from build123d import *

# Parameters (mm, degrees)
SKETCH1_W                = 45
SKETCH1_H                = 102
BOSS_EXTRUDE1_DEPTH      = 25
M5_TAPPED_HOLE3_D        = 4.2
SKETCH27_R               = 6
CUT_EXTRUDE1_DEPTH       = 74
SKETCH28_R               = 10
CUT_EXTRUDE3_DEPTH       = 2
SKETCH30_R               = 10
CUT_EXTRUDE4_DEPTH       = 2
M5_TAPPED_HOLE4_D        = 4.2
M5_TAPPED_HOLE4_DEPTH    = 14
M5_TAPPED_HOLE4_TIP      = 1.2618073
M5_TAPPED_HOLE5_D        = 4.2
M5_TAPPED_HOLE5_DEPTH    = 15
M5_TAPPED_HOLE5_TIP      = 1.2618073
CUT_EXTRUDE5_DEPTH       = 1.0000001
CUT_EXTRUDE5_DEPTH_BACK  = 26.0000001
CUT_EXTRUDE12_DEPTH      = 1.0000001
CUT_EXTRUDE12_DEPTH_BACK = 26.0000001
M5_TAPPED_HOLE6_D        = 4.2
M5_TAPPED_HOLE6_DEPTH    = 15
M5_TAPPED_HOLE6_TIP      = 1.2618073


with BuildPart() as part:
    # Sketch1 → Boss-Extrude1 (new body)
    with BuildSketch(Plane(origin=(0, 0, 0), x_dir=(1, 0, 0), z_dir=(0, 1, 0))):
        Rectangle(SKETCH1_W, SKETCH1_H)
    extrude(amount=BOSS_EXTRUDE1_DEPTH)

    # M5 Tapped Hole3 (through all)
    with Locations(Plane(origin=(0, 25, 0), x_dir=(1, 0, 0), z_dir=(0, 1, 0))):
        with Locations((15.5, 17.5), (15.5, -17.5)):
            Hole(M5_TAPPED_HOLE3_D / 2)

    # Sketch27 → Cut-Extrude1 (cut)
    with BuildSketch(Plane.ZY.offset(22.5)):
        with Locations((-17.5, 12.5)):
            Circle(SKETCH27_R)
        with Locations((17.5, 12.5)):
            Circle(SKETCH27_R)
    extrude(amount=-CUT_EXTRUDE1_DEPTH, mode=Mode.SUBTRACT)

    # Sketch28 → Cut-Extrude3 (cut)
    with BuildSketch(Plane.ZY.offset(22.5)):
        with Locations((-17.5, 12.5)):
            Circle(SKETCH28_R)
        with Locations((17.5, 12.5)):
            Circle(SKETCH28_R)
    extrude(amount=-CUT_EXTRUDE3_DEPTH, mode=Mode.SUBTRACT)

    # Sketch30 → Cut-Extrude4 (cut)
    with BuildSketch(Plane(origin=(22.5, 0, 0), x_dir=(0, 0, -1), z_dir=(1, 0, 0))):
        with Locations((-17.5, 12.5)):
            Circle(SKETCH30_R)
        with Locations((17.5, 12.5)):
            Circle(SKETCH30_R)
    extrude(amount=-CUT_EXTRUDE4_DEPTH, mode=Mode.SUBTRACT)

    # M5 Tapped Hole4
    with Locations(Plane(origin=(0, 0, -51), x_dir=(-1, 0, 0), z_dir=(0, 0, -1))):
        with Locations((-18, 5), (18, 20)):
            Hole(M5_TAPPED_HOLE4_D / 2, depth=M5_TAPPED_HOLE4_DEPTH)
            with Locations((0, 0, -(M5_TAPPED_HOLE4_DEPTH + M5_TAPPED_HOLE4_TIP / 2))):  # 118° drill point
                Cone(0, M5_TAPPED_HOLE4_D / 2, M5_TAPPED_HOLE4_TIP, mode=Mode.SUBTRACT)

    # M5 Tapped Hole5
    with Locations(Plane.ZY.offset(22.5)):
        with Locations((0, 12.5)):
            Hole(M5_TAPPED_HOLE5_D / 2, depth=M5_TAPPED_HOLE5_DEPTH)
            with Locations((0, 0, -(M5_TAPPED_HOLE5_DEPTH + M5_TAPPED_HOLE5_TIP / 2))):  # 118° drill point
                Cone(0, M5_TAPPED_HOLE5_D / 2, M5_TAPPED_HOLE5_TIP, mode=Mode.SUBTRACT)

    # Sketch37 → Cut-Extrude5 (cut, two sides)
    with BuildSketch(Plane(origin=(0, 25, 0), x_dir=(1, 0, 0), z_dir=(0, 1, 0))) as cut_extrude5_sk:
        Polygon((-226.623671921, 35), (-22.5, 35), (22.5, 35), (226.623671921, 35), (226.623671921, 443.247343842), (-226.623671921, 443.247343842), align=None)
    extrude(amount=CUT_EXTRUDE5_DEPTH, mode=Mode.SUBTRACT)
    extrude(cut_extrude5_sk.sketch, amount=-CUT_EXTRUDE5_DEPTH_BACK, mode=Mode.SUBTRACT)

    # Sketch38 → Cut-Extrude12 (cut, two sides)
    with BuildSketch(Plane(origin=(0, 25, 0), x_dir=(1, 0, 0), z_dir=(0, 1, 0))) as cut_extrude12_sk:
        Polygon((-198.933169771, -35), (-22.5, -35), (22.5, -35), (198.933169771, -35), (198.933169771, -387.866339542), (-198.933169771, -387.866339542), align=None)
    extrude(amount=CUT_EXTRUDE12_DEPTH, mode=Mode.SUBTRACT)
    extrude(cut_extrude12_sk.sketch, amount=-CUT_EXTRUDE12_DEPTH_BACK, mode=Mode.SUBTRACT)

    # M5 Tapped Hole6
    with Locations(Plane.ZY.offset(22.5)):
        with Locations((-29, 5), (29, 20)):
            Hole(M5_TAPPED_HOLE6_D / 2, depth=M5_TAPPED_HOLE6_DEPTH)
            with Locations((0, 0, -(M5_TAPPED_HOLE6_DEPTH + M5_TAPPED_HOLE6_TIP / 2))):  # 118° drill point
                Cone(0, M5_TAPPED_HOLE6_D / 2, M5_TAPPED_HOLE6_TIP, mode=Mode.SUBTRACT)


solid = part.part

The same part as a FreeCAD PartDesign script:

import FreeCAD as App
import Part
import Sketcher
Q = App.Units.Quantity

doc = App.newDocument("Part")
body = doc.addObject("PartDesign::Body", "Body")

# Sketch on XZ plane
sketch1 = doc.addObject("Sketcher::SketchObject", "Sketch")
body.addObject(sketch1)
sketch1.AttachmentSupport = (doc.XZ_Plane, [""])
sketch1.MapMode = "FlatFace"
sketch1.addGeometry([
    Part.LineSegment(App.Vector(-22, -51, 0), App.Vector(-22, 51, 0)),
    Part.LineSegment(App.Vector(-22, 51, 0), App.Vector(22, 51, 0)),
    Part.LineSegment(App.Vector(22, 51, 0), App.Vector(22, -51, 0)),
    Part.LineSegment(App.Vector(22, -51, 0), App.Vector(-22, -51, 0)),
], False)
sketch1.addConstraint([
    Sketcher.Constraint("Coincident", 0, 2, 1, 1),
    Sketcher.Constraint("Coincident", 1, 2, 2, 1),
    Sketcher.Constraint("Coincident", 2, 2, 3, 1),
    Sketcher.Constraint("Coincident", 3, 2, 0, 1),
    Sketcher.Constraint("Vertical", 0),
    Sketcher.Constraint("Horizontal", 1),
    Sketcher.Constraint("Vertical", 2),
    Sketcher.Constraint("Horizontal", 3),
    Sketcher.Constraint("Symmetric", 0, 2, 2, 2, -1, 1),
    Sketcher.Constraint("DistanceX", 1, 1, 1, 2, Q("45 mm")),
    Sketcher.Constraint("DistanceY", 0, 1, 0, 2, Q("102 mm")),
])
pad1 = doc.addObject("PartDesign::Pad", "Pad")
body.addObject(pad1)
pad1.Profile = sketch1
pad1.Length = 25
pad1.Reversed = True

# Sketch on XZ plane
sketch2 = doc.addObject("Sketcher::SketchObject", "Sketch001")
body.addObject(sketch2)
sketch2.AttachmentSupport = (doc.XZ_Plane, [""])
sketch2.MapMode = "FlatFace"
sketch2.AttachmentOffset = App.Placement(App.Vector(0, 0, -25), App.Rotation())
sketch2.addGeometry([
    Part.Circle(App.Vector(15.5, -17.5, 0), App.Vector(0, 0, 1), 2.1),
    Part.Circle(App.Vector(15.5, 17.5, 0), App.Vector(0, 0, 1), 2.1),
], False)
sketch2.addConstraint([
    Sketcher.Constraint("Equal", 0, 1),
    Sketcher.Constraint("Symmetric", 0, 3, 1, 3, -1),
    Sketcher.Constraint("Diameter", 0, Q("4.2 mm")),
    Sketcher.Constraint("DistanceY", 0, 3, 1, 3, Q("35 mm")),
    Sketcher.Constraint("DistanceX", -1, 1, 0, 3, Q("15.5 mm")),
])
doc.recompute()
hole = doc.addObject("PartDesign::Hole", "Hole")
body.addObject(hole)
hole.Profile = sketch2
hole.ThreadType = "None"
hole.Diameter = 4.2
hole.DepthType = "ThroughAll"
hole.Reversed = True

# Sketch on YZ plane
sketch3 = doc.addObject("Sketcher::SketchObject", "Sketch002")
body.addObject(sketch3)
sketch3.AttachmentSupport = (doc.YZ_Plane, [""])
sketch3.MapMode = "FlatFace"
sketch3.AttachmentOffset = App.Placement(App.Vector(0, 0, -22.5), App.Rotation())
sketch3.addGeometry([
    Part.Circle(App.Vector(12, -18, 0), App.Vector(0, 0, 1), 6),
    Part.Circle(App.Vector(12, 18, 0), App.Vector(0, 0, 1), 6),
], False)
sketch3.addConstraint([
    Sketcher.Constraint("Equal", 0, 1),
    Sketcher.Constraint("Symmetric", 0, 3, 1, 3, -1),
    Sketcher.Constraint("Diameter", 0, Q("12 mm")),
    Sketcher.Constraint("DistanceY", 0, 3, 1, 3, Q("35 mm")),
    Sketcher.Constraint("DistanceX", -1, 1, 0, 3, Q("12.5 mm")),
])
pocket1 = doc.addObject("PartDesign::Pocket", "Pocket")
body.addObject(pocket1)
pocket1.Profile = sketch3
pocket1.Length = 74
pocket1.Reversed = True

# Sketch on YZ plane
sketch4 = doc.addObject("Sketcher::SketchObject", "Sketch003")
body.addObject(sketch4)
sketch4.AttachmentSupport = (doc.YZ_Plane, [""])
sketch4.MapMode = "FlatFace"
sketch4.AttachmentOffset = App.Placement(App.Vector(0, 0, -22.5), App.Rotation())
sketch4.addGeometry([
    Part.Circle(App.Vector(12, -18, 0), App.Vector(0, 0, 1), 10),
    Part.Circle(App.Vector(12, 18, 0), App.Vector(0, 0, 1), 10),
], False)
sketch4.addConstraint([
    Sketcher.Constraint("Equal", 0, 1),
    Sketcher.Constraint("Symmetric", 0, 3, 1, 3, -1),
    Sketcher.Constraint("Diameter", 0, Q("20 mm")),
    Sketcher.Constraint("DistanceY", 0, 3, 1, 3, Q("35 mm")),
    Sketcher.Constraint("DistanceX", -1, 1, 0, 3, Q("12.5 mm")),
])
pocket2 = doc.addObject("PartDesign::Pocket", "Pocket001")
body.addObject(pocket2)
pocket2.Profile = sketch4
pocket2.Length = 2
pocket2.Reversed = True

# Sketch on YZ plane
sketch5 = doc.addObject("Sketcher::SketchObject", "Sketch004")
body.addObject(sketch5)
sketch5.AttachmentSupport = (doc.YZ_Plane, [""])
sketch5.MapMode = "FlatFace"
sketch5.AttachmentOffset = App.Placement(App.Vector(0, 0, 22.5), App.Rotation())
sketch5.addGeometry([
    Part.Circle(App.Vector(12, 18, 0), App.Vector(0, 0, 1), 10),
    Part.Circle(App.Vector(12, -18, 0), App.Vector(0, 0, 1), 10),
], False)
sketch5.addConstraint([
    Sketcher.Constraint("Equal", 0, 1),
    Sketcher.Constraint("Symmetric", 0, 3, 1, 3, -1),
    Sketcher.Constraint("Diameter", 0, Q("20 mm")),
    Sketcher.Constraint("DistanceY", 1, 3, 0, 3, Q("35 mm")),
    Sketcher.Constraint("DistanceX", -1, 1, 0, 3, Q("12.5 mm")),
])
pocket3 = doc.addObject("PartDesign::Pocket", "Pocket002")
body.addObject(pocket3)
pocket3.Profile = sketch5
pocket3.Length = 2

# Sketch on XY plane
sketch6 = doc.addObject("Sketcher::SketchObject", "Sketch005")
body.addObject(sketch6)
sketch6.AttachmentSupport = (doc.XY_Plane, [""])
sketch6.MapMode = "FlatFace"
sketch6.AttachmentOffset = App.Placement(App.Vector(0, 0, -51), App.Rotation())
sketch6.addGeometry([
    Part.Circle(App.Vector(18, 5, 0), App.Vector(0, 0, 1), 2.1),
    Part.Circle(App.Vector(-18, 20, 0), App.Vector(0, 0, 1), 2.1),
], False)
sketch6.addConstraint([
    Sketcher.Constraint("Equal", 0, 1),
    Sketcher.Constraint("Diameter", 0, Q("4.2 mm")),
    Sketcher.Constraint("DistanceX", -1, 1, 0, 3, Q("18 mm")),
    Sketcher.Constraint("DistanceY", -1, 1, 0, 3, Q("5 mm")),
    Sketcher.Constraint("DistanceX", 1, 3, -1, 1, Q("18 mm")),
    Sketcher.Constraint("DistanceY", -1, 1, 1, 3, Q("20 mm")),
])
doc.recompute()
hole2 = doc.addObject("PartDesign::Hole", "Hole001")
body.addObject(hole2)
hole2.Profile = sketch6
hole2.ThreadType = "None"
hole2.Diameter = 4.2
hole2.DepthType = "Dimension"
hole2.Depth = 14
hole2.DrillPoint = "Angled"
hole2.DrillPointAngle = 118
hole2.Reversed = True

# Sketch on YZ plane
sketch7 = doc.addObject("Sketcher::SketchObject", "Sketch006")
body.addObject(sketch7)
sketch7.AttachmentSupport = (doc.YZ_Plane, [""])
sketch7.MapMode = "FlatFace"
sketch7.AttachmentOffset = App.Placement(App.Vector(0, 0, -22.5), App.Rotation())
sketch7.addGeometry(Part.Circle(App.Vector(12.5, 0, 0), App.Vector(0, 0, 1), 2.1), False)
sketch7.addConstraint([
    Sketcher.Constraint("PointOnObject", 0, 3, -1),
    Sketcher.Constraint("Diameter", 0, Q("4.2 mm")),
    Sketcher.Constraint("DistanceX", -1, 1, 0, 3, Q("12.5 mm")),
])
doc.recompute()
hole3 = doc.addObject("PartDesign::Hole", "Hole002")
body.addObject(hole3)
hole3.Profile = sketch7
hole3.ThreadType = "None"
hole3.Diameter = 4.2
hole3.DepthType = "Dimension"
hole3.Depth = 15
hole3.DrillPoint = "Angled"
hole3.DrillPointAngle = 118
hole3.Reversed = True

# Sketch on XZ plane
sketch8 = doc.addObject("Sketcher::SketchObject", "Sketch007")
body.addObject(sketch8)
sketch8.AttachmentSupport = (doc.XZ_Plane, [""])
sketch8.MapMode = "FlatFace"
sketch8.AttachmentOffset = App.Placement(App.Vector(0, 0, -25), App.Rotation())
sketch8.addGeometry([
    Part.LineSegment(App.Vector(-227, -35, 0), App.Vector(227, -35, 0)),
    Part.LineSegment(App.Vector(227, -35, 0), App.Vector(227, -443, 0)),
    Part.LineSegment(App.Vector(227, -443, 0), App.Vector(-227, -443, 0)),
    Part.LineSegment(App.Vector(-227, -443, 0), App.Vector(-227, -35, 0)),
], False)
sketch8.addConstraint([
    Sketcher.Constraint("Coincident", 0, 2, 1, 1),
    Sketcher.Constraint("Coincident", 1, 2, 2, 1),
    Sketcher.Constraint("Coincident", 2, 2, 3, 1),
    Sketcher.Constraint("Coincident", 3, 2, 0, 1),
    Sketcher.Constraint("Horizontal", 0),
    Sketcher.Constraint("Vertical", 1),
    Sketcher.Constraint("Horizontal", 2),
    Sketcher.Constraint("Vertical", 3),
    Sketcher.Constraint("DistanceY", 0, 2, -1, 1, Q("35 mm")),
    Sketcher.Constraint("DistanceX", 0, 1, 0, 2, Q("453.247344 mm")),
    Sketcher.Constraint("DistanceY", 1, 2, 1, 1, Q("408.247344 mm")),
    Sketcher.Constraint("DistanceX", -1, 1, 0, 2, Q("226.623672 mm")),
])
pocket4 = doc.addObject("PartDesign::Pocket", "Pocket003")
body.addObject(pocket4)
pocket4.Profile = sketch8
pocket4.Type = "ThroughAll"
pocket4.Midplane = True

# Sketch on XZ plane
sketch9 = doc.addObject("Sketcher::SketchObject", "Sketch008")
body.addObject(sketch9)
sketch9.AttachmentSupport = (doc.XZ_Plane, [""])
sketch9.MapMode = "FlatFace"
sketch9.AttachmentOffset = App.Placement(App.Vector(0, 0, -25), App.Rotation())
sketch9.addGeometry([
    Part.LineSegment(App.Vector(199, 35, 0), App.Vector(-199, 35, 0)),
    Part.LineSegment(App.Vector(-199, 35, 0), App.Vector(-199, 388, 0)),
    Part.LineSegment(App.Vector(-199, 388, 0), App.Vector(199, 388, 0)),
    Part.LineSegment(App.Vector(199, 388, 0), App.Vector(199, 35, 0)),
], False)
sketch9.addConstraint([
    Sketcher.Constraint("Coincident", 0, 2, 1, 1),
    Sketcher.Constraint("Coincident", 1, 2, 2, 1),
    Sketcher.Constraint("Coincident", 2, 2, 3, 1),
    Sketcher.Constraint("Coincident", 3, 2, 0, 1),
    Sketcher.Constraint("Horizontal", 0),
    Sketcher.Constraint("Vertical", 1),
    Sketcher.Constraint("Horizontal", 2),
    Sketcher.Constraint("Vertical", 3),
    Sketcher.Constraint("DistanceY", -1, 1, 0, 2, Q("35 mm")),
    Sketcher.Constraint("DistanceX", 0, 2, 0, 1, Q("397.86634 mm")),
    Sketcher.Constraint("DistanceY", 1, 1, 1, 2, Q("352.86634 mm")),
    Sketcher.Constraint("DistanceX", 0, 2, -1, 1, Q("198.93317 mm")),
])
pocket5 = doc.addObject("PartDesign::Pocket", "Pocket004")
body.addObject(pocket5)
pocket5.Profile = sketch9
pocket5.Type = "ThroughAll"
pocket5.Midplane = True

# Sketch on YZ plane
sketch10 = doc.addObject("Sketcher::SketchObject", "Sketch009")
body.addObject(sketch10)
sketch10.AttachmentSupport = (doc.YZ_Plane, [""])
sketch10.MapMode = "FlatFace"
sketch10.AttachmentOffset = App.Placement(App.Vector(0, 0, -22.5), App.Rotation())
sketch10.addGeometry([
    Part.Circle(App.Vector(5, -29, 0), App.Vector(0, 0, 1), 2.1),
    Part.Circle(App.Vector(20, 29, 0), App.Vector(0, 0, 1), 2.1),
], False)
sketch10.addConstraint([
    Sketcher.Constraint("Equal", 0, 1),
    Sketcher.Constraint("Diameter", 0, Q("4.2 mm")),
    Sketcher.Constraint("DistanceX", -1, 1, 0, 3, Q("5 mm")),
    Sketcher.Constraint("DistanceY", 0, 3, -1, 1, Q("29 mm")),
    Sketcher.Constraint("DistanceX", -1, 1, 1, 3, Q("20 mm")),
    Sketcher.Constraint("DistanceY", -1, 1, 1, 3, Q("29 mm")),
])
doc.recompute()
hole4 = doc.addObject("PartDesign::Hole", "Hole003")
body.addObject(hole4)
hole4.Profile = sketch10
hole4.ThreadType = "None"
hole4.Diameter = 4.2
hole4.DepthType = "Dimension"
hole4.Depth = 15
hole4.DrillPoint = "Angled"
hole4.DrillPointAngle = 118
hole4.Reversed = True

doc.recompute()
